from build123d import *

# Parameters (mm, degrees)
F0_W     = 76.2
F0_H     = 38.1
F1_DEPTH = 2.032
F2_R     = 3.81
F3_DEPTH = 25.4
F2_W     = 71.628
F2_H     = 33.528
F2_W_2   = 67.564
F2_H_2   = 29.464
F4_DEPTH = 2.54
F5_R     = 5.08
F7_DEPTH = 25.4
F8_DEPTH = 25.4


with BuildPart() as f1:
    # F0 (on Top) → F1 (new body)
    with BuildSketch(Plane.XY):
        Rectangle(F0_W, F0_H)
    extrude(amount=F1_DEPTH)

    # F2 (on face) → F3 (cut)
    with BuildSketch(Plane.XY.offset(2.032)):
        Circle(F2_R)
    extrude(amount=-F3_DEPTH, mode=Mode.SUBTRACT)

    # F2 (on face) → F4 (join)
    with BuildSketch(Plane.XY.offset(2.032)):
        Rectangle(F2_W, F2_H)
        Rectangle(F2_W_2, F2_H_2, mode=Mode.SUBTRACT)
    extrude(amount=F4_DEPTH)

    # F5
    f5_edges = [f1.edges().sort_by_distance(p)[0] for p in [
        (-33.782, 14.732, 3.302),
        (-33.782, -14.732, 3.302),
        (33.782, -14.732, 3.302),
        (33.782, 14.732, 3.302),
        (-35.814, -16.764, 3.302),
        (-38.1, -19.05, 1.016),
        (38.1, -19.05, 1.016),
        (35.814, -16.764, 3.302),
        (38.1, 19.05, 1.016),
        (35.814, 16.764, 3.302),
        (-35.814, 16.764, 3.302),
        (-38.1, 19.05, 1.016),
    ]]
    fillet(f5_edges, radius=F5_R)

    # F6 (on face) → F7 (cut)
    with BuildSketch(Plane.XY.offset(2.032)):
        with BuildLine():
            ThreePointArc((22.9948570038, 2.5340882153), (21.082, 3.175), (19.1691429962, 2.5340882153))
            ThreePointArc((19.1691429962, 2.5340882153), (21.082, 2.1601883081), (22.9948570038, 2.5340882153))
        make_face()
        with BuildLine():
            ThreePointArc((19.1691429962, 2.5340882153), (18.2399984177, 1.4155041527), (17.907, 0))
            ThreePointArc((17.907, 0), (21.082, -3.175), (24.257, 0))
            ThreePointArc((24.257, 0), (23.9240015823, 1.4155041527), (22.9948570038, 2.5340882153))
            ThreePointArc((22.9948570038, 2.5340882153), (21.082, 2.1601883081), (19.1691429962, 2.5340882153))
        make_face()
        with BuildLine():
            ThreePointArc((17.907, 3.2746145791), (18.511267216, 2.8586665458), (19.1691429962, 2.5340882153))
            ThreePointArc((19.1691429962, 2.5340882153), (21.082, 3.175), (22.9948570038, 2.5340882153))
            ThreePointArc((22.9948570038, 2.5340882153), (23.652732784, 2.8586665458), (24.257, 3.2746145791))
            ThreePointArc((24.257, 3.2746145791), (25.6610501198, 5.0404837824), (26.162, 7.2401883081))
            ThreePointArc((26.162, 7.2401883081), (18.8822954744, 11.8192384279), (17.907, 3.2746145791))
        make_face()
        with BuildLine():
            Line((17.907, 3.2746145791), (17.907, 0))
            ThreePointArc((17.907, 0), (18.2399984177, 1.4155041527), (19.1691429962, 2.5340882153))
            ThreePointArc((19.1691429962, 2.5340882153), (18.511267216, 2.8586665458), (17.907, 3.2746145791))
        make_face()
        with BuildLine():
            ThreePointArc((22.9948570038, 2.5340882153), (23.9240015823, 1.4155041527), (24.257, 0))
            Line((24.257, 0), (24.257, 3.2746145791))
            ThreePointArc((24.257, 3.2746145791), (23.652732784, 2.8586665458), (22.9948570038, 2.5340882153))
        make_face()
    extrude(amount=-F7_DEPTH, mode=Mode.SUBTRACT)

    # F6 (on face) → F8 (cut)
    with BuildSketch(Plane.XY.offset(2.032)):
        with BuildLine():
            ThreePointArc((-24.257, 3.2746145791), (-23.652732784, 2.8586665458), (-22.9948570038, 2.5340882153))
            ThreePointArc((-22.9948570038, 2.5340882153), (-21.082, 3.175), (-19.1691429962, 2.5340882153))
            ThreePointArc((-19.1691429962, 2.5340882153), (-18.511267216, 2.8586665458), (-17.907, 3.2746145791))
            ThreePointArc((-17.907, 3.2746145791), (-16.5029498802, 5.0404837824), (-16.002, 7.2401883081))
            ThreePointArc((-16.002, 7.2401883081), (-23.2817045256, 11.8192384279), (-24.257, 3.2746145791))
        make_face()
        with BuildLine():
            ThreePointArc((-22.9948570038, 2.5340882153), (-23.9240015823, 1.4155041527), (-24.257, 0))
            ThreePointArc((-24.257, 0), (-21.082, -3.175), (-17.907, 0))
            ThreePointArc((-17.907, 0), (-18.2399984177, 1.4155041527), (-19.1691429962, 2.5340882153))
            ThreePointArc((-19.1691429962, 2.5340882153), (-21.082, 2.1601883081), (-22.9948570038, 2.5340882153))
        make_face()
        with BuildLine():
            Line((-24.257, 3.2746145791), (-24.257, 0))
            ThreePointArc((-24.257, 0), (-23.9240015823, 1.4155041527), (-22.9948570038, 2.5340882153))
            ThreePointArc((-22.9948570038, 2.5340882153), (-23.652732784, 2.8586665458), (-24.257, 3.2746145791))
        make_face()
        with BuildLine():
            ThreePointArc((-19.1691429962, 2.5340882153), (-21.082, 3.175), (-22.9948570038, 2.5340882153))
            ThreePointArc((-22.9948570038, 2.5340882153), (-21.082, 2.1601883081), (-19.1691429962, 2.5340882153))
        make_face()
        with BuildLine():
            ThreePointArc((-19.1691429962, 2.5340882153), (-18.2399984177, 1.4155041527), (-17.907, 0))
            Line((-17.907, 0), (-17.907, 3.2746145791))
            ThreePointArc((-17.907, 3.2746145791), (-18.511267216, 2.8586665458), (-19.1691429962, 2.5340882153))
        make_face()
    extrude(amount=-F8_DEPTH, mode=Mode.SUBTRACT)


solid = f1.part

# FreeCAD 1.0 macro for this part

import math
import FreeCAD as App
import Part
import Sketcher
from FreeCAD import Vector
Q = App.Units.Quantity


def edges_at(feature, points):
    """Names of the edges that pass closest to the given points."""
    edges = feature.Shape.Edges
    near = lambda p: min(range(len(edges)), key=lambda i: edges[i].distToShape(Part.Vertex(*p))[0])
    return sorted({f"Edge{near(p) + 1}" for p in points})


def add_polygon(sketch, points):
    """Adds a closed chain of lines whose ends are joined by coincident constraints."""
    first, n = sketch.GeometryCount, len(points)
    for a, b in zip(points, points[1:] + points[:1]):
        sketch.addGeometry(Part.LineSegment(App.Vector(*a, 0), App.Vector(*b, 0)), False)
    for i in range(n):
        sketch.addConstraint(Sketcher.Constraint("Coincident", first + i, 2, first + (i + 1) % n, 1))

doc = App.newDocument("Part")
body = doc.addObject("PartDesign::Body", "Body")

# Sketch on XY plane
sketch1 = body.newObject("Sketcher::SketchObject", "Sketch")
sketch1.AttachmentSupport = (doc.getObject("XY_Plane"), [""])
sketch1.MapMode = "FlatFace"
add_polygon(sketch1, [(-38.1, 19.05), (-38.1, -19.05), (38.1, -19.05), (38.1, 19.05)])  # lines 0-3
sketch1.addConstraint(Sketcher.Constraint("Vertical", 0))
sketch1.addConstraint(Sketcher.Constraint("Horizontal", 1))
sketch1.addConstraint(Sketcher.Constraint("Vertical", 2))
sketch1.addConstraint(Sketcher.Constraint("Horizontal", 3))
sketch1.addConstraint(Sketcher.Constraint("Symmetric", 0, 2, 2, 2, -1, 1))
sketch1.addConstraint(Sketcher.Constraint("DistanceX", 1, 1, 1, 2, Q("3 in")))
sketch1.addConstraint(Sketcher.Constraint("DistanceY", 0, 2, 0, 1, Q("1.5 in")))
pad1 = body.newObject("PartDesign::Pad", "Pad")
pad1.Profile = sketch1
pad1.Length = Q("0.08 in")

# Sketch on XY plane
sketch2 = body.newObject("Sketcher::SketchObject", "Sketch001")
sketch2.AttachmentSupport = (doc.getObject("XY_Plane"), [""])
sketch2.MapMode = "FlatFace"
sketch2.AttachmentOffset = App.Placement(Vector(0, 0, 0.08 * 25.4), App.Rotation())
sketch2.addGeometry(Part.Circle(Vector(0, 0, 0), Vector(0, 0, 1), 3.81), False)
sketch2.addConstraint(Sketcher.Constraint("Coincident", 0, 3, -1, 1))
sketch2.addConstraint(Sketcher.Constraint("Diameter", 0, Q("0.3 in")))
pocket1 = body.newObject("PartDesign::Pocket", "Pocket")
pocket1.Profile = sketch2
pocket1.Length = Q("1 in")

# Sketch on XY plane
sketch3 = body.newObject("Sketcher::SketchObject", "Sketch002")
sketch3.AttachmentSupport = (doc.getObject("XY_Plane"), [""])
sketch3.MapMode = "FlatFace"
sketch3.AttachmentOffset = App.Placement(Vector(0, 0, 0.08 * 25.4), App.Rotation())
add_polygon(sketch3, [(-35.814, 16.764), (-35.814, -16.764), (35.814, -16.764), (35.814, 16.764)])  # lines 0-3
add_polygon(sketch3, [(33.782, -14.732), (-33.782, -14.732), (-33.782, 14.732), (33.782, 14.732)])  # lines 4-7
sketch3.addConstraint(Sketcher.Constraint("Vertical", 0))
sketch3.addConstraint(Sketcher.Constraint("Horizontal", 1))
sketch3.addConstraint(Sketcher.Constraint("Vertical", 2))
sketch3.addConstraint(Sketcher.Constraint("Horizontal", 3))
sketch3.addConstraint(Sketcher.Constraint("Horizontal", 4))
sketch3.addConstraint(Sketcher.Constraint("Vertical", 5))
sketch3.addConstraint(Sketcher.Constraint("Horizontal", 6))
sketch3.addConstraint(Sketcher.Constraint("Vertical", 7))
sketch3.addConstraint(Sketcher.Constraint("Symmetric", 0, 2, 2, 2, -1, 1))
sketch3.addConstraint(Sketcher.Constraint("Symmetric", 4, 2, 6, 2, -1, 1))
sketch3.addConstraint(Sketcher.Constraint("DistanceX", 1, 1, 1, 2, Q("2.82 in")))
sketch3.addConstraint(Sketcher.Constraint("DistanceX", 4, 2, 4, 1, Q("2.66 in")))
sketch3.addConstraint(Sketcher.Constraint("DistanceY", 0, 2, 0, 1, Q("1.32 in")))
sketch3.addConstraint(Sketcher.Constraint("DistanceY", 5, 1, 5, 2, Q("1.16 in")))
pad2 = body.newObject("PartDesign::Pad", "Pad001")
pad2.Profile = sketch3
pad2.Length = Q("0.1 in")
doc.recompute()

fillet = body.newObject("PartDesign::Fillet", "Fillet")
fillet.Base = (pad2, edges_at(pad2, [
    (-33.782, 14.732, 3.302),
    (-33.782, -14.732, 3.302),
    (33.782, -14.732, 3.302),
    (33.782, 14.732, 3.302),
    (-35.814, -16.764, 3.302),
    (-38.1, -19.05, 1.016),
    (38.1, -19.05, 1.016),
    (35.814, -16.764, 3.302),
    (38.1, 19.05, 1.016),
    (35.814, 16.764, 3.302),
    (-35.814, 16.764, 3.302),
    (-38.1, 19.05, 1.016),
]))
fillet.Radius = Q("0.2 in")

# Sketch on XY plane
sketch4 = body.newObject("Sketcher::SketchObject", "Sketch003")
sketch4.AttachmentSupport = (doc.getObject("XY_Plane"), [""])
sketch4.MapMode = "FlatFace"
sketch4.AttachmentOffset = App.Placement(Vector(0, 0, 0.08 * 25.4), App.Rotation())
sketch4.addGeometry(Part.ArcOfCircle(Part.Circle(Vector(21.082, 0, 0), Vector(0, 0, 1), 3.175), math.radians(180), math.radians(360)), False)
sketch4.addGeometry(Part.LineSegment(Vector(24.257, 0, 0), Vector(24.257, 3.274615, 0)), False)
sketch4.addGeometry(Part.ArcOfCircle(Part.Circle(Vector(21.082, 7.240188, 0), Vector(0, 0, 1), 5.08), math.radians(-51.317813), math.radians(0)), False)
sketch4.addGeometry(Part.ArcOfCircle(Part.Circle(Vector(21.082, 7.240188, 0), Vector(0, 0, 1), 5.08), math.radians(0), math.radians(231.317813)), False)
sketch4.addGeometry(Part.LineSegment(Vector(17.907, 3.274615, 0), Vector(17.907, 0, 0)), False)
sketch4.addConstraint(Sketcher.Constraint("Tangent", 0, 2, 1, 1))
sketch4.addConstraint(Sketcher.Constraint("Coincident", 1, 2, 2, 1))
sketch4.addConstraint(Sketcher.Constraint("Tangent", 2, 2, 3, 1))
sketch4.addConstraint(Sketcher.Constraint("Coincident", 3, 2, 4, 1))
sketch4.addConstraint(Sketcher.Constraint("Tangent", 4, 2, 0, 1))
sketch4.addConstraint(Sketcher.Constraint("Vertical", 1))
sketch4.addConstraint(Sketcher.Constraint("Vertical", 4))
sketch4.addConstraint(Sketcher.Constraint("Equal", 2, 3))
sketch4.addConstraint(Sketcher.Constraint("PointOnObject", 0, 3, -1))
sketch4.addConstraint(Sketcher.Constraint("Horizontal", 3, 3, 2, 2))
sketch4.addConstraint(Sketcher.Constraint("Horizontal", 1, 2, 3, 2))
sketch4.addConstraint(Sketcher.Constraint("Radius", 2, Q("0.2 in")))
sketch4.addConstraint(Sketcher.Constraint("Radius", 0, Q("0.125 in")))
sketch4.addConstraint(Sketcher.Constraint("DistanceX", -1, 1, 0, 3, Q("0.83 in")))
sketch4.addConstraint(Sketcher.Constraint("DistanceY", 1, 1, 1, 2, 3.274615))
pocket2 = body.newObject("PartDesign::Pocket", "Pocket001")
pocket2.Profile = sketch4
pocket2.Length = Q("1 in")

# Sketch on XY plane
sketch5 = body.newObject("Sketcher::SketchObject", "Sketch004")
sketch5.AttachmentSupport = (doc.getObject("XY_Plane"), [""])
sketch5.MapMode = "FlatFace"
sketch5.AttachmentOffset = App.Placement(Vector(0, 0, 0.08 * 25.4), App.Rotation())
sketch5.addGeometry(Part.ArcOfCircle(Part.Circle(Vector(-21.082, 7.240188, 0), Vector(0, 0, 1), 5.08), math.radians(-51.317813), math.radians(0)), False)
sketch5.addGeometry(Part.ArcOfCircle(Part.Circle(Vector(-21.082, 7.240188, 0), Vector(0, 0, 1), 5.08), math.radians(0), math.radians(231.317813)), False)
sketch5.addGeometry(Part.LineSegment(Vector(-24.257, 3.274615, 0), Vector(-24.257, 0, 0)), False)
sketch5.addGeometry(Part.ArcOfCircle(Part.Circle(Vector(-21.082, 0, 0), Vector(0, 0, 1), 3.175), math.radians(180), math.radians(360)), False)
sketch5.addGeometry(Part.LineSegment(Vector(-17.907, 0, 0), Vector(-17.907, 3.274615, 0)), False)
sketch5.addConstraint(Sketcher.Constraint("Tangent", 0, 2, 1, 1))
sketch5.addConstraint(Sketcher.Constraint("Coincident", 1, 2, 2, 1))
sketch5.addConstraint(Sketcher.Constraint("Tangent", 2, 2, 3, 1))
sketch5.addConstraint(Sketcher.Constraint("Tangent", 3, 2, 4, 1))
sketch5.addConstraint(Sketcher.Constraint("Coincident", 4, 2, 0, 1))
sketch5.addConstraint(Sketcher.Constraint("Vertical", 2))
sketch5.addConstraint(Sketcher.Constraint("Vertical", 4))
sketch5.addConstraint(Sketcher.Constraint("Equal", 0, 1))
sketch5.addConstraint(Sketcher.Constraint("PointOnObject", 3, 3, -1))
sketch5.addConstraint(Sketcher.Constraint("Horizontal", 1, 3, 0, 2))
sketch5.addConstraint(Sketcher.Constraint("Horizontal", 1, 2, 4, 2))
sketch5.addConstraint(Sketcher.Constraint("Radius", 0, Q("0.2 in")))
sketch5.addConstraint(Sketcher.Constraint("Radius", 3, Q("0.125 in")))
sketch5.addConstraint(Sketcher.Constraint("DistanceX", 0, 3, -1, 1, Q("0.83 in")))
sketch5.addConstraint(Sketcher.Constraint("DistanceY", 2, 2, 2, 1, 3.274615))
pocket3 = body.newObject("PartDesign::Pocket", "Pocket002")
pocket3.Profile = sketch5
pocket3.Length = Q("1 in")

doc.recompute()
